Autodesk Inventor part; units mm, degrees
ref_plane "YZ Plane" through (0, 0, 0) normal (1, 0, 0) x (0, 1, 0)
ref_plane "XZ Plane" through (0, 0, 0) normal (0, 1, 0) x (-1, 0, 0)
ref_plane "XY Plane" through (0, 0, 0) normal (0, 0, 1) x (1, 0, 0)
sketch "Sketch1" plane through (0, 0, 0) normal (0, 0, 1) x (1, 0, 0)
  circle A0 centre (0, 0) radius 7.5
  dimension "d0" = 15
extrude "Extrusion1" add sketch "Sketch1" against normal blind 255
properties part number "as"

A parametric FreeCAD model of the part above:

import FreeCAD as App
import Part
import Sketcher

V = App.Vector
Q = App.Units.Quantity

doc = App.newDocument("Part")
body = doc.addObject("PartDesign::Body", "Body")

# Sketch on XY plane
sketch1 = body.newObject("Sketcher::SketchObject", "Sketch")
sketch1.AttachmentSupport = (doc.getObject("XY_Plane"), [""])
sketch1.MapMode = "FlatFace"
sketch1.addGeometry(Part.Circle(V(0, 0, 0), V(0, 0, 1), 7.5), False)
sketch1.addConstraint([
    Sketcher.Constraint("Coincident", 0, 3, -1, 1),
    Sketcher.Constraint("Diameter", 0, Q("15 mm")),
])
pad1 = body.newObject("PartDesign::Pad", "Pad")
pad1.Profile = sketch1
pad1.Length = 255
pad1.Reversed = True

doc.recompute()
